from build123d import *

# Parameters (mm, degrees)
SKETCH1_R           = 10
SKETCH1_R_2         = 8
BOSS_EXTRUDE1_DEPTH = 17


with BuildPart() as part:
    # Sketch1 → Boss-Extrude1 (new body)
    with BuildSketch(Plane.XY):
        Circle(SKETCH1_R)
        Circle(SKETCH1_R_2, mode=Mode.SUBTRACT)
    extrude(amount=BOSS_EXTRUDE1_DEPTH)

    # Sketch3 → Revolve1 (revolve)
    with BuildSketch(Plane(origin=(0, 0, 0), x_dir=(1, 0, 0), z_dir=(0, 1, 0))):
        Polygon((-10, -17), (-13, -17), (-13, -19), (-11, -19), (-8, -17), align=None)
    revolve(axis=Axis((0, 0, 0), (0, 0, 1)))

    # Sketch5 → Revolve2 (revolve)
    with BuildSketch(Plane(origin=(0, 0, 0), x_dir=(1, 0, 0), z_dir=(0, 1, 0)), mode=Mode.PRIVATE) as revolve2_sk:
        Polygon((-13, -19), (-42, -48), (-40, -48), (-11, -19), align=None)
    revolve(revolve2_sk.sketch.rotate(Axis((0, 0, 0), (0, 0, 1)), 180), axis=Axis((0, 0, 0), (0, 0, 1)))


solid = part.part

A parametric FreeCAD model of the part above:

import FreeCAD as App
import Part
import Sketcher

V = App.Vector
Q = App.Units.Quantity


def add_polygon(sketch, points):
    """Adds a closed chain of lines whose ends are joined by coincident constraints."""
    first, n = sketch.GeometryCount, len(points)
    for a, b in zip(points, points[1:] + points[:1]):
        sketch.addGeometry(Part.LineSegment(App.Vector(*a, 0), App.Vector(*b, 0)), False)
    for i in range(n):
        sketch.addConstraint(Sketcher.Constraint("Coincident", first + i, 2, first + (i + 1) % n, 1))

doc = App.newDocument("Part")
body = doc.addObject("PartDesign::Body", "Body")

sketch1 = body.newObject("Sketcher::SketchObject", "Sketch")
sketch1.AttachmentSupport = (doc.getObject("XY_Plane"), [""])
sketch1.MapMode = "FlatFace"
sketch1.addGeometry([
    Part.Circle(V(0, 0, 0), V(0, 0, 1), 10),
    Part.Circle(V(0, 0, 0), V(0, 0, 1), 8),
], False)
sketch1.addConstraint([
    Sketcher.Constraint("Coincident", 0, 3, -1, 1),
    Sketcher.Constraint("Coincident", 1, 3, -1, 1),
    Sketcher.Constraint("Diameter", 0, 20.0),
    Sketcher.Constraint("Diameter", 1, 16.0),
])
pad1 = body.newObject("PartDesign::Pad", "Pad")
pad1.Profile = sketch1
pad1.Length = 17

sketch2 = body.newObject("Sketcher::SketchObject", "Sketch001")
sketch2.AttachmentSupport = (doc.getObject("XZ_Plane"), [""])
sketch2.MapMode = "FlatFace"
add_polygon(sketch2, [(-13, 17), (-13, 19), (-11, 19), (-8, 17)])
sketch2.addConstraint([
    Sketcher.Constraint("Vertical", 0),
    Sketcher.Constraint("Horizontal", 1),
    Sketcher.Constraint("Horizontal", 3),
    Sketcher.Constraint("Equal", 1, 0),
    Sketcher.Constraint("DistanceX", 1, 1, 1, 2, 2.0),
    Sketcher.Constraint("DistanceX", 3, 2, 3, 1, 5.0),
    Sketcher.Constraint("DistanceX", 0, 2, -1, 1, 13.0),
    Sketcher.Constraint("DistanceY", -1, 1, 0, 2, 19.0),
])
revolution = body.newObject("PartDesign::Revolution", "Revolution")
revolution.Profile = sketch2
revolution.ReferenceAxis = (sketch2, ["V_Axis"])
revolution.Angle = 360

sketch3 = body.newObject("Sketcher::SketchObject", "Sketch002")
sketch3.AttachmentSupport = (doc.getObject("XZ_Plane"), [""])
sketch3.MapMode = "FlatFace"
add_polygon(sketch3, [(-13, 19), (-42, 48), (-40, 48), (-11, 19)])
sketch3.addConstraint([
    Sketcher.Constraint("Horizontal", 1),
    Sketcher.Constraint("Horizontal", 3),
    Sketcher.Constraint("Parallel", 0, 2),
    Sketcher.Constraint("DistanceX", 1, 1, 1, 2, 2.0),
    Sketcher.Constraint("Angle", 0, Q("135 deg")),
    Sketcher.Constraint("DistanceX", 0, 2, -1, 1, 42.0),
    Sketcher.Constraint("DistanceY", -1, 1, 0, 2, 48.0),
    Sketcher.Constraint("DistanceX", 2, 2, -1, 1, 11.0),
])
revolution2 = body.newObject("PartDesign::Revolution", "Revolution001")
revolution2.Profile = sketch3
revolution2.ReferenceAxis = (sketch3, ["V_Axis"])
revolution2.Angle = 360

doc.recompute()
